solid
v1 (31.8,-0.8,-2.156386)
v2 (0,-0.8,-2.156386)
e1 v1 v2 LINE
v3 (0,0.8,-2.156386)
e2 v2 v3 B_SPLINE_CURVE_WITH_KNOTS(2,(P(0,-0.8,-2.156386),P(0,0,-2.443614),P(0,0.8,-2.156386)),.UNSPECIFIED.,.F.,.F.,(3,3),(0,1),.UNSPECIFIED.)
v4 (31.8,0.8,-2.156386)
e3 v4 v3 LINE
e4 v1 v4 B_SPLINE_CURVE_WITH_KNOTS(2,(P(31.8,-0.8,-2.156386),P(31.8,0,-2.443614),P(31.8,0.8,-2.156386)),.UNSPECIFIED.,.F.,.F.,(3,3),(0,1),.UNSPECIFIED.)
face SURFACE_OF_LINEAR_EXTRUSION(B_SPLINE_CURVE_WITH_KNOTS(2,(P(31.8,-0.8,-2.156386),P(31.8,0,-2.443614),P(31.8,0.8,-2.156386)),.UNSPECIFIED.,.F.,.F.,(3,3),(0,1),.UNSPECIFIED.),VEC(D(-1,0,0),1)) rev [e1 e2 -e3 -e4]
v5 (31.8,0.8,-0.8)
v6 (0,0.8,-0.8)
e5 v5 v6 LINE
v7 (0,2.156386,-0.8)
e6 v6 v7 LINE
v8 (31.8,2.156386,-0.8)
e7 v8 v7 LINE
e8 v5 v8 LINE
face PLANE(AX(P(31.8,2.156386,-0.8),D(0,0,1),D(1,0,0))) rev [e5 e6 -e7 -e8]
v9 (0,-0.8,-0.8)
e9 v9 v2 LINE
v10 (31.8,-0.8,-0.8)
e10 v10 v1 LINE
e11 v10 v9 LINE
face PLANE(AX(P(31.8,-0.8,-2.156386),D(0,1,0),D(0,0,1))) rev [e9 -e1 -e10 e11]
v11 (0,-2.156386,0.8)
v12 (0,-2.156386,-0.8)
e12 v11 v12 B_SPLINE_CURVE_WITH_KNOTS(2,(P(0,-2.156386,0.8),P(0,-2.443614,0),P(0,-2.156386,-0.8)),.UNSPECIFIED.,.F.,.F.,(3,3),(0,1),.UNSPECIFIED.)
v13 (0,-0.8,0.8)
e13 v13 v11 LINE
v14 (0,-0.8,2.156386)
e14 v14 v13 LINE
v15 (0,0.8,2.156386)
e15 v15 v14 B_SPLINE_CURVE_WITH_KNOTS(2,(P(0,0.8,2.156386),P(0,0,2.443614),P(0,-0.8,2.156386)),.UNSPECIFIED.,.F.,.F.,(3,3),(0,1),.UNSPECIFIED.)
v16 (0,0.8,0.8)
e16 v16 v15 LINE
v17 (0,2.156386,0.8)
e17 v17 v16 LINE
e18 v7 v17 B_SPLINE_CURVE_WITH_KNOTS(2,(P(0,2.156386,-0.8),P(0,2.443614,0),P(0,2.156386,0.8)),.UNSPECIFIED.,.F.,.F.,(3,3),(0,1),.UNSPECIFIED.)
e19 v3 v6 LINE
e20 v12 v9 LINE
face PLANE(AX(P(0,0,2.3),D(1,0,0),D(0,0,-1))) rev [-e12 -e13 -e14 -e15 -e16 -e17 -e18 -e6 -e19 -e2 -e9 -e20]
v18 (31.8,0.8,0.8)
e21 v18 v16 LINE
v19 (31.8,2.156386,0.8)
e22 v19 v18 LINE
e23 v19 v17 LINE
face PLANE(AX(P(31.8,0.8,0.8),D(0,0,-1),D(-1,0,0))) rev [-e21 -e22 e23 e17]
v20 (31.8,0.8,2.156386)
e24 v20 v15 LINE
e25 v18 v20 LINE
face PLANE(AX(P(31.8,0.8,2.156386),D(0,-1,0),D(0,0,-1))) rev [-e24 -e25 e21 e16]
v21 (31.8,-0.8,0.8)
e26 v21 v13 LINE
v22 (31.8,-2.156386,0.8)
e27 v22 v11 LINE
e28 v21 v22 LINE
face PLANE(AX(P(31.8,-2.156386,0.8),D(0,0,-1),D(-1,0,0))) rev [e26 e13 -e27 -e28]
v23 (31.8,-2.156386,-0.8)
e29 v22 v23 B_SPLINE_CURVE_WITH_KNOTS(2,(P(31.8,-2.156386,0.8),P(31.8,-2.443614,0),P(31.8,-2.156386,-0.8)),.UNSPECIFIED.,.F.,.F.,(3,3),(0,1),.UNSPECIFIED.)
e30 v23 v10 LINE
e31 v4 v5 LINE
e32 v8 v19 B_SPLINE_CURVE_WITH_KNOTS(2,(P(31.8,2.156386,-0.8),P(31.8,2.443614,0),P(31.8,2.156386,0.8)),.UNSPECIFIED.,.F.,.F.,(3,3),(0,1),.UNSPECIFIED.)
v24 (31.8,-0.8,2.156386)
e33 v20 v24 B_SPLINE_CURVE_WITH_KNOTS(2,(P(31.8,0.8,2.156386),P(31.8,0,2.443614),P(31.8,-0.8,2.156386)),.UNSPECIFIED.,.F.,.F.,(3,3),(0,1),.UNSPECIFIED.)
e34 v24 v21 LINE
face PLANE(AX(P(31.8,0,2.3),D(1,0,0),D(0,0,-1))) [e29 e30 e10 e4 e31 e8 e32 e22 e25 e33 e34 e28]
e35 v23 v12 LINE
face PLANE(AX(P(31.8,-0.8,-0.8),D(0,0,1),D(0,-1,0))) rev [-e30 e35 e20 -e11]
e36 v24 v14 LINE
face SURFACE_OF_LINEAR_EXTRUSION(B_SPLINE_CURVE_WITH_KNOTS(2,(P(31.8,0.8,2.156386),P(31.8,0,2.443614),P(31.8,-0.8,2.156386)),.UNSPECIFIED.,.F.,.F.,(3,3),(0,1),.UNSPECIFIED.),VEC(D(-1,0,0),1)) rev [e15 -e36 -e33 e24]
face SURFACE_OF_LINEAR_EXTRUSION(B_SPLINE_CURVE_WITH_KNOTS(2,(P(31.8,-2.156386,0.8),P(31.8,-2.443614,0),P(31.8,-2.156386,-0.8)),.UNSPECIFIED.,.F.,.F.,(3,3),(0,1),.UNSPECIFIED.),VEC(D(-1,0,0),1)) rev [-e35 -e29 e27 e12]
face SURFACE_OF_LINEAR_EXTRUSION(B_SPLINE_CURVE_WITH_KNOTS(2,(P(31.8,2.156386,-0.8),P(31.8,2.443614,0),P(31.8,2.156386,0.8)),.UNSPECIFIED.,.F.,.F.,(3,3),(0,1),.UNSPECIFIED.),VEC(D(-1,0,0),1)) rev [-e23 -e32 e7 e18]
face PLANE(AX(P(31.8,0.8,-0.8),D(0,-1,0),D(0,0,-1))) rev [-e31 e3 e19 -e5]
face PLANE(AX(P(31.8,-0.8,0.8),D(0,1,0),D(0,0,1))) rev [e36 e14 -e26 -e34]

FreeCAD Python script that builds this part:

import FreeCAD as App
import Part
import Sketcher
from FreeCAD import Vector

doc = App.newDocument("Part")
body = doc.addObject("PartDesign::Body", "Body")

# Sketch on YZ plane
sketch1 = body.newObject("Sketcher::SketchObject", "Sketch")
sketch1.AttachmentSupport = (doc.getObject("YZ_Plane"), [""])
sketch1.MapMode = "FlatFace"
sketch1.addGeometry([
    Part.LineSegment(Vector(0.8, 0.8, 0), Vector(0.8, 2.156386, 0)),  # 0
    Part.BSplineCurve([Vector(-0.8, 2.156386, 0), Vector(0, 2.443614, 0), Vector(0.8, 2.156386, 0)], [3, 3], [0, 1], False, 2, [1, 1, 1], False),  # 1
    Part.LineSegment(Vector(-0.8, 2.156386, 0), Vector(-0.8, 0.8, 0)),  # 2
    Part.LineSegment(Vector(-0.8, 0.8, 0), Vector(-2.156386, 0.8, 0)),  # 3
    Part.BSplineCurve([Vector(-2.156386, -0.8, 0), Vector(-2.443614, 0, 0), Vector(-2.156386, 0.8, 0)], [3, 3], [0, 1], False, 2, [1, 1, 1], False),  # 4
    Part.LineSegment(Vector(-2.156386, -0.8, 0), Vector(-0.8, -0.8, 0)),  # 5
    Part.LineSegment(Vector(-0.8, -0.8, 0), Vector(-0.8, -2.156386, 0)),  # 6
    Part.BSplineCurve([Vector(0.8, -2.156386, 0), Vector(0, -2.443614, 0), Vector(-0.8, -2.156386, 0)], [3, 3], [0, 1], False, 2, [1, 1, 1], False),  # 7
    Part.LineSegment(Vector(0.8, -2.156386, 0), Vector(0.8, -0.8, 0)),  # 8
    Part.LineSegment(Vector(0.8, -0.8, 0), Vector(2.156386, -0.8, 0)),  # 9
    Part.BSplineCurve([Vector(2.156386, 0.8, 0), Vector(2.443614, 0, 0), Vector(2.156386, -0.8, 0)], [3, 3], [0, 1], False, 2, [1, 1, 1], False),  # 10
    Part.LineSegment(Vector(2.156386, 0.8, 0), Vector(0.8, 0.8, 0)),  # 11
], False)
sketch1.addConstraint([
    Sketcher.Constraint("Block", 1),
    Sketcher.Constraint("Block", 4),
    Sketcher.Constraint("Block", 7),
    Sketcher.Constraint("Block", 10),
    Sketcher.Constraint("Coincident", 0, 2, 1, 2),
    Sketcher.Constraint("Coincident", 1, 1, 2, 1),
    Sketcher.Constraint("Coincident", 2, 2, 3, 1),
    Sketcher.Constraint("Coincident", 3, 2, 4, 2),
    Sketcher.Constraint("Coincident", 4, 1, 5, 1),
    Sketcher.Constraint("Coincident", 5, 2, 6, 1),
    Sketcher.Constraint("Coincident", 6, 2, 7, 2),
    Sketcher.Constraint("Coincident", 7, 1, 8, 1),
    Sketcher.Constraint("Coincident", 8, 2, 9, 1),
    Sketcher.Constraint("Coincident", 9, 2, 10, 2),
    Sketcher.Constraint("Coincident", 10, 1, 11, 1),
    Sketcher.Constraint("Coincident", 11, 2, 0, 1),
    Sketcher.Constraint("Vertical", 0),
    Sketcher.Constraint("Vertical", 2),
    Sketcher.Constraint("Horizontal", 3),
    Sketcher.Constraint("Horizontal", 5),
    Sketcher.Constraint("Vertical", 6),
    Sketcher.Constraint("Vertical", 8),
    Sketcher.Constraint("Horizontal", 9),
    Sketcher.Constraint("Horizontal", 11),
])
pad1 = body.newObject("PartDesign::Pad", "Pad")
pad1.Profile = sketch1
pad1.Length = 31.8

doc.recompute()
